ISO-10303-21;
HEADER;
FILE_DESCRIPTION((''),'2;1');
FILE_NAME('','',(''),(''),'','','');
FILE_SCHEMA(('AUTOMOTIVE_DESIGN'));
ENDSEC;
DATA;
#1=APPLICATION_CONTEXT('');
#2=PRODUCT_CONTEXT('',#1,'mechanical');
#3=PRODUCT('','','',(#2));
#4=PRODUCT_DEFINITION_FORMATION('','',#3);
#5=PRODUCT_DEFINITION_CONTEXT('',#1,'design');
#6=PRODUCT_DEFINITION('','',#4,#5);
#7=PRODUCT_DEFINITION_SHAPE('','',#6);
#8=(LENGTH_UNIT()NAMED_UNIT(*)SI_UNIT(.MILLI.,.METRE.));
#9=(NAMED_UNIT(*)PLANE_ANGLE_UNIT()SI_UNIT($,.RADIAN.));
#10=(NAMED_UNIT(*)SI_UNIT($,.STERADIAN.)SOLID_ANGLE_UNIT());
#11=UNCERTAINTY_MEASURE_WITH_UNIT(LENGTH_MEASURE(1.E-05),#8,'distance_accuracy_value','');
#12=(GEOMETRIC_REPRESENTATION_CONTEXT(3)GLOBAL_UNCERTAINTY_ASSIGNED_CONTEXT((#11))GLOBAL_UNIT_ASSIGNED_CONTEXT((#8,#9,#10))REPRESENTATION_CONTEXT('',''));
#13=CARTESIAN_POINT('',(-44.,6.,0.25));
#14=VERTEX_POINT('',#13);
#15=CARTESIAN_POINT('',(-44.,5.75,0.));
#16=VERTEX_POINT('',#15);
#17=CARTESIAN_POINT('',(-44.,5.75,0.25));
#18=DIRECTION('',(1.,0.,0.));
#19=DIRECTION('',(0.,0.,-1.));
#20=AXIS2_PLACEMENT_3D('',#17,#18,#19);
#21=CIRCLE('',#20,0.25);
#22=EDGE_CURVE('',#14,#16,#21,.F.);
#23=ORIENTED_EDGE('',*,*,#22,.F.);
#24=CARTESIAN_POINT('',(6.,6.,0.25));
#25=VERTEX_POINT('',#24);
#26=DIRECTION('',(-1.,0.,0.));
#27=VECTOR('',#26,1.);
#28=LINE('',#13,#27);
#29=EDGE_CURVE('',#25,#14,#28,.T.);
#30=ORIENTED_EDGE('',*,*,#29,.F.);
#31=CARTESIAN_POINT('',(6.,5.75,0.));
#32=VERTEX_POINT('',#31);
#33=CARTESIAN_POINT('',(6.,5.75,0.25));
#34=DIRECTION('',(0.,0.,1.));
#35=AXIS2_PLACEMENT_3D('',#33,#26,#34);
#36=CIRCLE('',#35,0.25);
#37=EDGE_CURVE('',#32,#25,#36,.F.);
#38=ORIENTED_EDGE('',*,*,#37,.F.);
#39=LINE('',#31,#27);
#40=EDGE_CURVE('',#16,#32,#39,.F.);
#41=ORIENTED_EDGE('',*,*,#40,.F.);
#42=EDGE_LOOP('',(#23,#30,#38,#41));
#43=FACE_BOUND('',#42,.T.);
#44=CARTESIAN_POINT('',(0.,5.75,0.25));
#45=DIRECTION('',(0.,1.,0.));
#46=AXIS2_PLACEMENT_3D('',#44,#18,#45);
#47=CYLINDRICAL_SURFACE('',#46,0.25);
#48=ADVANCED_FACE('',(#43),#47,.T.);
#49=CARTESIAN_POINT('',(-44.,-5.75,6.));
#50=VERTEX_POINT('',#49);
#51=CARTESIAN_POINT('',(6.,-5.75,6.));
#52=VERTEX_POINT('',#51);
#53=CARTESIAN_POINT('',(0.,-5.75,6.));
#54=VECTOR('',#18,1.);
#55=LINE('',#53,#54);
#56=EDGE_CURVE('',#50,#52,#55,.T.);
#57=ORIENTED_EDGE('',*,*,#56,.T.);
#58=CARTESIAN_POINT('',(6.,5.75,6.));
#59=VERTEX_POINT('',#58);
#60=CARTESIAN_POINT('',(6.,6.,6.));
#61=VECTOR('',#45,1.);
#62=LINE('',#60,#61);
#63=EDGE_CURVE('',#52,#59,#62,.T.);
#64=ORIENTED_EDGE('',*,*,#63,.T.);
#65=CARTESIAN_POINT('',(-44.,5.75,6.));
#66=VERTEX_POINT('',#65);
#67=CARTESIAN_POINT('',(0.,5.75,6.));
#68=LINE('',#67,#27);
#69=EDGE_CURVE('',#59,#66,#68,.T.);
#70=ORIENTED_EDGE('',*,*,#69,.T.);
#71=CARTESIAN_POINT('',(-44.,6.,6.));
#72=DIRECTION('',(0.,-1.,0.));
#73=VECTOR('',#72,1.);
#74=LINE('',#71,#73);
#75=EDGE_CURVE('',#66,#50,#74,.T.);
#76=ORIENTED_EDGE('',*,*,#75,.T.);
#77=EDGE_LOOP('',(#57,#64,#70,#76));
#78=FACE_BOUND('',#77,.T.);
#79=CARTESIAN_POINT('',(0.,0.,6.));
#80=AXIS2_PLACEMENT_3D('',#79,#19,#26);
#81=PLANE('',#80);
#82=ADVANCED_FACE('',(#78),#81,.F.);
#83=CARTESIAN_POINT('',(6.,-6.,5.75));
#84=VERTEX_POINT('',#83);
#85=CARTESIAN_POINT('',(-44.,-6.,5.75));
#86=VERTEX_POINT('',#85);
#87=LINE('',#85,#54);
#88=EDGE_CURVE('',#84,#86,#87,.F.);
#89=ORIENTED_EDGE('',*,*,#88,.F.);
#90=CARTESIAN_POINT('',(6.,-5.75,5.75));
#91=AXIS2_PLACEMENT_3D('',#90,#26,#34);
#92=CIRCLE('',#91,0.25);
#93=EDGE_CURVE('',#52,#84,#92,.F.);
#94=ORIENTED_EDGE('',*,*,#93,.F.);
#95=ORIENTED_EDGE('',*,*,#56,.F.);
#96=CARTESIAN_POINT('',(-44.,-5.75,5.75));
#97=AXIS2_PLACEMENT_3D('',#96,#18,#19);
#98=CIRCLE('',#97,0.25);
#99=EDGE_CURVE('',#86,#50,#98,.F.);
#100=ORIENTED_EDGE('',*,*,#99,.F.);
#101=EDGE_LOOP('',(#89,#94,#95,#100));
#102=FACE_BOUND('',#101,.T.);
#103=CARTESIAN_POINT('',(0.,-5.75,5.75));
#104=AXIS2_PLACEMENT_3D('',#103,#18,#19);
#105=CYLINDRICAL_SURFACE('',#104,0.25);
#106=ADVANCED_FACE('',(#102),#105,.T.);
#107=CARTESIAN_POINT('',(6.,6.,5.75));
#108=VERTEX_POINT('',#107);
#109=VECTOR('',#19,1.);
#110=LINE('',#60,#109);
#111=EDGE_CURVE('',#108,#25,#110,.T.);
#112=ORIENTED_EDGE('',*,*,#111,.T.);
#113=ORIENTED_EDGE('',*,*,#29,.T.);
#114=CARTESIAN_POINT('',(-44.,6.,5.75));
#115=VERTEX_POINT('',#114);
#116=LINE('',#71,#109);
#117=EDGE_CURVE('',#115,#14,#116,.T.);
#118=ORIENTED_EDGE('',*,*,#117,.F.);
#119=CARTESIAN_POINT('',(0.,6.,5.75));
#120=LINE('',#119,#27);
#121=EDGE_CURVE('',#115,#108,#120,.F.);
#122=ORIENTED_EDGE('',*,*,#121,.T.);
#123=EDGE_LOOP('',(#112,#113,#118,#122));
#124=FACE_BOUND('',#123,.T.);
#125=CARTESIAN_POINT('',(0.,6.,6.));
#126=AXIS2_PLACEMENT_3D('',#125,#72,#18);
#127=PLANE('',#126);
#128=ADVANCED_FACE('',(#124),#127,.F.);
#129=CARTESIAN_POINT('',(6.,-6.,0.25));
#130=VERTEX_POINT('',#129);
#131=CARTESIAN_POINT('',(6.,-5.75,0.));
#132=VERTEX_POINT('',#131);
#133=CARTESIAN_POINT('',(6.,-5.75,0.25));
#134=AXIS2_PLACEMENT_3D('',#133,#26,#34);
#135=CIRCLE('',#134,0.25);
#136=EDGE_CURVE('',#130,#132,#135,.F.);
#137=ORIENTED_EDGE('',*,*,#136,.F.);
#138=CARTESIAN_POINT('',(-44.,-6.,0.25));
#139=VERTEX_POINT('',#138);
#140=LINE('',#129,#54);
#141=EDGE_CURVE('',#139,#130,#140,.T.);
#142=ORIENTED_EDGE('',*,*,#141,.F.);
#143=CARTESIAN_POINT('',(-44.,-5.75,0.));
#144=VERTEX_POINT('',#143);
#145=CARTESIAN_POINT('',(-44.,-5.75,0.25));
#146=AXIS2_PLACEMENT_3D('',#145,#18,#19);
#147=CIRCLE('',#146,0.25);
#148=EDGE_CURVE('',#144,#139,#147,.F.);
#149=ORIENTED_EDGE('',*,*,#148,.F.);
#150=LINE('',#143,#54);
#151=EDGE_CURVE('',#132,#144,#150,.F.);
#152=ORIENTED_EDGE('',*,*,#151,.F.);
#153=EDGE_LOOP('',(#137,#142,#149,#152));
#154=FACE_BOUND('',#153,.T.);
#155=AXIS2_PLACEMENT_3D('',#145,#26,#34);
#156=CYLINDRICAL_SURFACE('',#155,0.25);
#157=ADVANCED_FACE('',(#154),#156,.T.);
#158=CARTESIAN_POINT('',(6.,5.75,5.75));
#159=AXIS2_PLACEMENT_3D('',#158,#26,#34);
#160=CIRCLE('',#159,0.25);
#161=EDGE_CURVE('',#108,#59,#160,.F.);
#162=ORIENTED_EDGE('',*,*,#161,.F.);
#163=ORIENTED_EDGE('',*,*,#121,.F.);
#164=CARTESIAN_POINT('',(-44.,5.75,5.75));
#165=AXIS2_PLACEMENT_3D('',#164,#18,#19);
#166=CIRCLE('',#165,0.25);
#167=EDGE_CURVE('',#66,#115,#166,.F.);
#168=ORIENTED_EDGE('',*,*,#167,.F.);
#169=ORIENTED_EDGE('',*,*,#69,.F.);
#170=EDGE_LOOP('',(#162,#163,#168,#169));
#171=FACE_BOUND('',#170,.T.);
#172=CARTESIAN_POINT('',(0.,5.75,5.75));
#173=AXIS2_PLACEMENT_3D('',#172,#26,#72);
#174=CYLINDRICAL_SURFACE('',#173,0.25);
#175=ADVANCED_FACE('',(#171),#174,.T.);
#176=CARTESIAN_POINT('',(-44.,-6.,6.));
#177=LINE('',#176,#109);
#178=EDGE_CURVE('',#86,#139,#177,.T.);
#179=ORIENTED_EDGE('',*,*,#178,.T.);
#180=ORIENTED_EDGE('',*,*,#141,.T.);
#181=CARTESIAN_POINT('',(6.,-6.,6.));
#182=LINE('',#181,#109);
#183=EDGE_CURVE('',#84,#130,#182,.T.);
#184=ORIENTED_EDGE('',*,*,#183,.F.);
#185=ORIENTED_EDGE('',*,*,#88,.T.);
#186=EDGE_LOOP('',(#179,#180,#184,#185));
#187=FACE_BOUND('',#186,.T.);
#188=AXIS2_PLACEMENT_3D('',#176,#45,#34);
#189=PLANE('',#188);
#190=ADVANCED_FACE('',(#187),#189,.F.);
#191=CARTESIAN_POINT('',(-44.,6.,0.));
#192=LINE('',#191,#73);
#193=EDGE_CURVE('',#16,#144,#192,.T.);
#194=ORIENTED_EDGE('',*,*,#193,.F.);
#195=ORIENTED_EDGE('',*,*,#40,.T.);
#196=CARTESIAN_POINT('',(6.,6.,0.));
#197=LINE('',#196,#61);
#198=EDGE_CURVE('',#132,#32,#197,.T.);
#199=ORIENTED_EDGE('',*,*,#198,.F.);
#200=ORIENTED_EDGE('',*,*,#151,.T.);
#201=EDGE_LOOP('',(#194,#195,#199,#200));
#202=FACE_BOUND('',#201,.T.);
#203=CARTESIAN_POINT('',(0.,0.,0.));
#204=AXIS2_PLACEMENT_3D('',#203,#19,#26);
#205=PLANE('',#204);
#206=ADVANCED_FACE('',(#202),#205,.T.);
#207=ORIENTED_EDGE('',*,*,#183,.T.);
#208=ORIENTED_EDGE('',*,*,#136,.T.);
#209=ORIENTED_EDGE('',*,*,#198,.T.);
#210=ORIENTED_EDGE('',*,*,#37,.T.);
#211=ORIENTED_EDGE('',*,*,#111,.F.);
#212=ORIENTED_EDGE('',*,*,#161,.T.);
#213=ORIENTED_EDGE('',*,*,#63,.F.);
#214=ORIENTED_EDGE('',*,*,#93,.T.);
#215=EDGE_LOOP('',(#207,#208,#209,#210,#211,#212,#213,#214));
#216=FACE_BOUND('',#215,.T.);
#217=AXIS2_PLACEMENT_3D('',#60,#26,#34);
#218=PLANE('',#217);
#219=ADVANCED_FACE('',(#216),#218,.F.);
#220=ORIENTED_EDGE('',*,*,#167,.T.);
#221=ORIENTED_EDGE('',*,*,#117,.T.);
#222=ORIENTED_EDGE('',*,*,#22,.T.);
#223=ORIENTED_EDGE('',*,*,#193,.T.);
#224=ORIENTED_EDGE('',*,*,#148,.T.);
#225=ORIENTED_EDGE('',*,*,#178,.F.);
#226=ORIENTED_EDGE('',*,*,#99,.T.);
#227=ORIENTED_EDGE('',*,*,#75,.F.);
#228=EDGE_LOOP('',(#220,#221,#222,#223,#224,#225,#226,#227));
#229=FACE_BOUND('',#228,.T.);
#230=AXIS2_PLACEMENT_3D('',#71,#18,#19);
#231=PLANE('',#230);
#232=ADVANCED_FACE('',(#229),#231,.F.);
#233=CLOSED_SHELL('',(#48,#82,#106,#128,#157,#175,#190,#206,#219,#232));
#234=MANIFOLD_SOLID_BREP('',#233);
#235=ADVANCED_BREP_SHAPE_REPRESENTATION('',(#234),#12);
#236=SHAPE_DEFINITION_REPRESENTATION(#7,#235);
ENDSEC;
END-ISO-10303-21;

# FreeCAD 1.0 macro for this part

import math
import FreeCAD as App
import Part
import Sketcher
from FreeCAD import Vector


def edges_at(feature, points):
    """Names of the edges that pass closest to the given points."""
    edges = feature.Shape.Edges
    near = lambda p: min(range(len(edges)), key=lambda i: edges[i].distToShape(Part.Vertex(*p))[0])
    return sorted({f"Edge{near(p) + 1}" for p in points})


def add_polygon(sketch, points):
    """Adds a closed chain of lines whose ends are joined by coincident constraints."""
    first, n = sketch.GeometryCount, len(points)
    for a, b in zip(points, points[1:] + points[:1]):
        sketch.addGeometry(Part.LineSegment(App.Vector(*a, 0), App.Vector(*b, 0)), False)
    for i in range(n):
        sketch.addConstraint(Sketcher.Constraint("Coincident", first + i, 2, first + (i + 1) % n, 1))

doc = App.newDocument("Part")
body = doc.addObject("PartDesign::Body", "Body")

# Sketch on XY plane
sketch1 = body.newObject("Sketcher::SketchObject", "Sketch")
sketch1.AttachmentSupport = (doc.getObject("XY_Plane"), [""])
sketch1.MapMode = "FlatFace"
sketch1.addGeometry(Part.LineSegment(Vector(0, 6, 0), Vector(-44, 6, 0)), False)
sketch1.addGeometry(Part.LineSegment(Vector(-44, 6, 0), Vector(-44, -6, 0)), False)
sketch1.addGeometry(Part.LineSegment(Vector(-44, -6, 0), Vector(0, -6, 0)), False)
sketch1.addGeometry(Part.ArcOfCircle(Part.Circle(Vector(0, 0, 0), Vector(0, 0, 1), 6), math.radians(-90), math.radians(90)), False)
sketch1.addConstraint(Sketcher.Constraint("Coincident", 0, 2, 1, 1))
sketch1.addConstraint(Sketcher.Constraint("Coincident", 1, 2, 2, 1))
sketch1.addConstraint(Sketcher.Constraint("Tangent", 2, 2, 3, 1))
sketch1.addConstraint(Sketcher.Constraint("Tangent", 3, 2, 0, 1))
sketch1.addConstraint(Sketcher.Constraint("Horizontal", 0))
sketch1.addConstraint(Sketcher.Constraint("Vertical", 1))
sketch1.addConstraint(Sketcher.Constraint("Horizontal", 2))
sketch1.addConstraint(Sketcher.Constraint("Coincident", 3, 3, -1, 1))
sketch1.addConstraint(Sketcher.Constraint("Radius", 3, 6.0))
sketch1.addConstraint(Sketcher.Constraint("DistanceX", 0, 2, 0, 1, 44.0))
pad1 = body.newObject("PartDesign::Pad", "Pad")
pad1.Profile = sketch1
pad1.Length = 6

# Sketch on XY plane
sketch2 = body.newObject("Sketcher::SketchObject", "Sketch001")
sketch2.AttachmentSupport = (doc.getObject("XY_Plane"), [""])
sketch2.MapMode = "FlatFace"
add_polygon(sketch2, [(-44, 6), (-44, -6), (6, -6), (6, 6)])  # lines 0-3
sketch2.addConstraint(Sketcher.Constraint("Vertical", 0))
sketch2.addConstraint(Sketcher.Constraint("Horizontal", 1))
sketch2.addConstraint(Sketcher.Constraint("Vertical", 2))
sketch2.addConstraint(Sketcher.Constraint("Horizontal", 3))
sketch2.addConstraint(Sketcher.Constraint("DistanceX", 1, 1, 1, 2, 50.0))
sketch2.addConstraint(Sketcher.Constraint("DistanceY", 0, 2, 0, 1, 12.0))
sketch2.addConstraint(Sketcher.Constraint("DistanceX", 0, 2, -1, 1, 44.0))
sketch2.addConstraint(Sketcher.Constraint("DistanceY", 0, 2, -1, 1, 6.0))
pad2 = body.newObject("PartDesign::Pad", "Pad001")
pad2.Profile = sketch2
pad2.Length = 6
doc.recompute()

fillet = body.newObject("PartDesign::Fillet", "Fillet")
fillet.Base = (pad2, edges_at(pad2, [
    (-19, -6, 6),
    (-19, -6, 0),
    (-19, 6, 0),
    (-19, 6, 6),
]))
fillet.Radius = 0.25

doc.recompute()
